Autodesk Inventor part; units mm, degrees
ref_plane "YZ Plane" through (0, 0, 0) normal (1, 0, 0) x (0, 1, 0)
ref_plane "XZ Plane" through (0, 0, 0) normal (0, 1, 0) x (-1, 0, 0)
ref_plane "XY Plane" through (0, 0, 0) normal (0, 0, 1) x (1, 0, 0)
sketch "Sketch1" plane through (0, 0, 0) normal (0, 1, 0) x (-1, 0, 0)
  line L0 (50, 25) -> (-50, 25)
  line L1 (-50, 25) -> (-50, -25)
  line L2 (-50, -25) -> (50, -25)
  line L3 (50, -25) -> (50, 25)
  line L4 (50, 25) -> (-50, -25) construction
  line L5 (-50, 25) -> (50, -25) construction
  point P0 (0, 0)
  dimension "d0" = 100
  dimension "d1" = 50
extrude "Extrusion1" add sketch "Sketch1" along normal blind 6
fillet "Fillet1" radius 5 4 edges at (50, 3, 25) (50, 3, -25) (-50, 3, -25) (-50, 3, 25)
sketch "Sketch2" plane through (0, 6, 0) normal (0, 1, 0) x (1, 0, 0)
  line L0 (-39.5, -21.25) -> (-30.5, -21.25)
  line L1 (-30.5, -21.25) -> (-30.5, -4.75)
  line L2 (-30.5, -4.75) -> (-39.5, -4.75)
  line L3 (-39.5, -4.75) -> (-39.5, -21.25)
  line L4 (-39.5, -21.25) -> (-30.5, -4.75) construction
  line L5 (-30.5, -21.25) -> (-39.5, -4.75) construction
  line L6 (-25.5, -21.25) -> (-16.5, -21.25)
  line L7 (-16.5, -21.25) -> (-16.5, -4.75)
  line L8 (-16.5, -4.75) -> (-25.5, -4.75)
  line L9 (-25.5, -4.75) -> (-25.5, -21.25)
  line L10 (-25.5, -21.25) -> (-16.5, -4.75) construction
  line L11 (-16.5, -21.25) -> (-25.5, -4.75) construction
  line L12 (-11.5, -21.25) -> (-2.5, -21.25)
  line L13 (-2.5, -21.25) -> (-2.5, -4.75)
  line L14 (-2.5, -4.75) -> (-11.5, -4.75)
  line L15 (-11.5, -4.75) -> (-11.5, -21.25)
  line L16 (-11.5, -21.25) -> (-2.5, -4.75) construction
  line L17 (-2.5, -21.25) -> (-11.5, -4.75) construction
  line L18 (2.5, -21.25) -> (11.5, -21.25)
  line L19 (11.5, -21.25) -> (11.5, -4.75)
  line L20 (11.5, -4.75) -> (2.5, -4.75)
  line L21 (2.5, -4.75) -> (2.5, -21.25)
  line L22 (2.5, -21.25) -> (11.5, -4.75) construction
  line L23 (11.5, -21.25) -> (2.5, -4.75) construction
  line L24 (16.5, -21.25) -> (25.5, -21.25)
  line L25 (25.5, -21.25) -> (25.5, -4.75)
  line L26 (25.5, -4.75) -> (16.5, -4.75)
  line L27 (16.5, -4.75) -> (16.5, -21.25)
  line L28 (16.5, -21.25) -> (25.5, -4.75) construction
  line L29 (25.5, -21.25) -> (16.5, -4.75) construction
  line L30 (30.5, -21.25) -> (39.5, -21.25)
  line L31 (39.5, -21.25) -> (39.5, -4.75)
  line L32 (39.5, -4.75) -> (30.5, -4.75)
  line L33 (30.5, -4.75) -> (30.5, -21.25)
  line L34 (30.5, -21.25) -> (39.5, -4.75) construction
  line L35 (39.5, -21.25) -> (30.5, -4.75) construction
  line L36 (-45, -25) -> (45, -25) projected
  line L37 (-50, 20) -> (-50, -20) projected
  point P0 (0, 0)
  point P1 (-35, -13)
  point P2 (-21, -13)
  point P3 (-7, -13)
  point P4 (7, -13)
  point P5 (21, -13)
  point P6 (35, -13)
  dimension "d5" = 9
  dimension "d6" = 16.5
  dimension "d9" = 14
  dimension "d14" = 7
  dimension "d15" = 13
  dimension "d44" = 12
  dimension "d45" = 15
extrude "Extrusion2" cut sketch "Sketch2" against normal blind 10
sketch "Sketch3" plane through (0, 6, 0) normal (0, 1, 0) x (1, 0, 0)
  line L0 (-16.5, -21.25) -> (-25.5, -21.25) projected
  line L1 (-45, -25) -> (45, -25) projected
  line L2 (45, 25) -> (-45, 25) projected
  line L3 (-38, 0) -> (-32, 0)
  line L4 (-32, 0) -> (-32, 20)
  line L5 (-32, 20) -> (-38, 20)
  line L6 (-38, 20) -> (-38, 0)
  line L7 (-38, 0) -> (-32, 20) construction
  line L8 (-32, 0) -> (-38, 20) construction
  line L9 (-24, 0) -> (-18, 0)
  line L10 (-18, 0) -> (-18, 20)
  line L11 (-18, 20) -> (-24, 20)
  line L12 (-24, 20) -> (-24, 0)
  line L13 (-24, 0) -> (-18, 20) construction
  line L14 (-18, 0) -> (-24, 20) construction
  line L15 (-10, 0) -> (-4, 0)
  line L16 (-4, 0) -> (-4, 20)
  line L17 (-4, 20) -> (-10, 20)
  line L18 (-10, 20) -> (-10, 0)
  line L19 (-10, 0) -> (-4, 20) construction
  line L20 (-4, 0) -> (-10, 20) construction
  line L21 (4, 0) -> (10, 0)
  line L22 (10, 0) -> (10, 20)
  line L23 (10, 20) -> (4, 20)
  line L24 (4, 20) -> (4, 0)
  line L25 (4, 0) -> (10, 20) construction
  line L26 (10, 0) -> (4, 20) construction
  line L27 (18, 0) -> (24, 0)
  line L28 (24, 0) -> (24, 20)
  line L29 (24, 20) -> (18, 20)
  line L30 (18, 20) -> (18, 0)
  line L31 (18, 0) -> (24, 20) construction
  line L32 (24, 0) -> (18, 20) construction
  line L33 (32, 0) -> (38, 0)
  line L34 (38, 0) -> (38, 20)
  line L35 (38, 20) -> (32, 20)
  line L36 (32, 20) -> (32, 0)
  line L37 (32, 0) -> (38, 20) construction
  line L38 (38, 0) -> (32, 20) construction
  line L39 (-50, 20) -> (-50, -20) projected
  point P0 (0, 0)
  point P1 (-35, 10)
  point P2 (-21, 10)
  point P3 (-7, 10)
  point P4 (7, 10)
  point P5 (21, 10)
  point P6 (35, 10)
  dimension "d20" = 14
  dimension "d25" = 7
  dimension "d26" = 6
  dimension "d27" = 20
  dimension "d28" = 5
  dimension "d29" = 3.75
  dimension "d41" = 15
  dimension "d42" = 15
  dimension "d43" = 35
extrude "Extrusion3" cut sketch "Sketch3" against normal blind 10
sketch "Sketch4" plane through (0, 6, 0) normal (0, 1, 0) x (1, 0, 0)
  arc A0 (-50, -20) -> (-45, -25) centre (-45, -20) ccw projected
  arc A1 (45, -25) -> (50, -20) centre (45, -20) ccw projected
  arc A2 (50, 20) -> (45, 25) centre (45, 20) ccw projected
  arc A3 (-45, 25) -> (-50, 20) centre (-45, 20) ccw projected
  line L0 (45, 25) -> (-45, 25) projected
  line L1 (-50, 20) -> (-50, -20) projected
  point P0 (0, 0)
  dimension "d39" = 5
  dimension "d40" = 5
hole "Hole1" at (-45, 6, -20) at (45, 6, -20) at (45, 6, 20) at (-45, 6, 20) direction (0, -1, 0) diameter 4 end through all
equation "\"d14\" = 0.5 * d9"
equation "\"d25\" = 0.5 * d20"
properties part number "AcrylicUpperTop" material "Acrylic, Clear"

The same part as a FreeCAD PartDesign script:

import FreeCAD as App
import Part
import Sketcher
from FreeCAD import Vector


def edges_at(feature, points):
    """Names of the edges that pass closest to the given points."""
    edges = feature.Shape.Edges
    near = lambda p: min(range(len(edges)), key=lambda i: edges[i].distToShape(Part.Vertex(*p))[0])
    return sorted({f"Edge{near(p) + 1}" for p in points})


def add_polygon(sketch, points):
    """Adds a closed chain of lines whose ends are joined by coincident constraints."""
    first, n = sketch.GeometryCount, len(points)
    for a, b in zip(points, points[1:] + points[:1]):
        sketch.addGeometry(Part.LineSegment(App.Vector(*a, 0), App.Vector(*b, 0)), False)
    for i in range(n):
        sketch.addConstraint(Sketcher.Constraint("Coincident", first + i, 2, first + (i + 1) % n, 1))

doc = App.newDocument("Part")
body = doc.addObject("PartDesign::Body", "Body")

sketch1 = body.newObject("Sketcher::SketchObject", "Sketch")
sketch1.AttachmentSupport = (doc.getObject("XZ_Plane"), [""])
sketch1.MapMode = "FlatFace"
add_polygon(sketch1, [(-50, -25), (-50, 25), (50, 25), (50, -25)])
sketch1.addConstraint([
    Sketcher.Constraint("Vertical", 0),
    Sketcher.Constraint("Horizontal", 1),
    Sketcher.Constraint("Vertical", 2),
    Sketcher.Constraint("Horizontal", 3),
    Sketcher.Constraint("Symmetric", 0, 2, 2, 2, -1, 1),
    Sketcher.Constraint("DistanceX", 1, 1, 1, 2, 100.0),
    Sketcher.Constraint("DistanceY", 0, 1, 0, 2, 50.0),
])
pad1 = body.newObject("PartDesign::Pad", "Pad")
pad1.Profile = sketch1
pad1.Length = 6
pad1.Reversed = True
doc.recompute()

fillet = body.newObject("PartDesign::Fillet", "Fillet")
fillet.Base = (pad1, edges_at(pad1, [
    (50, 3, 25),
    (50, 3, -25),
    (-50, 3, -25),
    (-50, 3, 25),
]))
fillet.Radius = 5

sketch2 = body.newObject("Sketcher::SketchObject", "Sketch001")
sketch2.AttachmentSupport = (doc.getObject("XZ_Plane"), [""])
sketch2.MapMode = "FlatFace"
sketch2.AttachmentOffset = App.Placement(Vector(0, 0, -6), App.Rotation())
add_polygon(sketch2, [(-39.5, 4.75), (-39.5, 21.25), (-30.5, 21.25), (-30.5, 4.75)])
add_polygon(sketch2, [(-25.5, 4.75), (-25.5, 21.25), (-16.5, 21.25), (-16.5, 4.75)])
add_polygon(sketch2, [(-11.5, 4.75), (-11.5, 21.25), (-2.5, 21.25), (-2.5, 4.75)])
add_polygon(sketch2, [(2.5, 4.75), (2.5, 21.25), (11.5, 21.25), (11.5, 4.75)])
add_polygon(sketch2, [(16.5, 4.75), (16.5, 21.25), (25.5, 21.25), (25.5, 4.75)])
add_polygon(sketch2, [(30.5, 4.75), (30.5, 21.25), (39.5, 21.25), (39.5, 4.75)])
sketch2.addConstraint([
    Sketcher.Constraint("Vertical", 0),
    Sketcher.Constraint("Horizontal", 1),
    Sketcher.Constraint("Vertical", 2),
    Sketcher.Constraint("Horizontal", 3),
    Sketcher.Constraint("Vertical", 4),
    Sketcher.Constraint("Horizontal", 5),
    Sketcher.Constraint("Vertical", 6),
    Sketcher.Constraint("Horizontal", 7),
    Sketcher.Constraint("Vertical", 8),
    Sketcher.Constraint("Horizontal", 9),
    Sketcher.Constraint("Vertical", 10),
    Sketcher.Constraint("Horizontal", 11),
    Sketcher.Constraint("Vertical", 12),
    Sketcher.Constraint("Horizontal", 13),
    Sketcher.Constraint("Vertical", 14),
    Sketcher.Constraint("Horizontal", 15),
    Sketcher.Constraint("Vertical", 16),
    Sketcher.Constraint("Horizontal", 17),
    Sketcher.Constraint("Vertical", 18),
    Sketcher.Constraint("Horizontal", 19),
    Sketcher.Constraint("Vertical", 20),
    Sketcher.Constraint("Horizontal", 21),
    Sketcher.Constraint("Vertical", 22),
    Sketcher.Constraint("Horizontal", 23),
    Sketcher.Constraint("Symmetric", 9, 2, 12, 2, -2),
    Sketcher.Constraint("Symmetric", 11, 2, 14, 2, -2),
    Sketcher.Constraint("Symmetric", 5, 2, 16, 2, -2),
    Sketcher.Constraint("Symmetric", 7, 2, 18, 2, -2),
    Sketcher.Constraint("Symmetric", 1, 2, 20, 2, -2),
    Sketcher.Constraint("Symmetric", 3, 2, 22, 2, -2),
    Sketcher.Constraint("Horizontal", 1, 2, 4, 2),
    Sketcher.Constraint("Horizontal", 3, 2, 6, 2),
    Sketcher.Constraint("Horizontal", 5, 2, 8, 2),
    Sketcher.Constraint("Horizontal", 7, 2, 10, 2),
    Sketcher.Constraint("Equal", 3, 5),
    Sketcher.Constraint("Equal", 7, 9),
    Sketcher.Constraint("DistanceX", 1, 1, 1, 2, 9.0),
    Sketcher.Constraint("DistanceY", 0, 1, 0, 2, 16.5),
    Sketcher.Constraint("DistanceX", 0, 2, 4, 2, 14.0),
    Sketcher.Constraint("DistanceX", 4, 2, 8, 2, 14.0),
    Sketcher.Constraint("DistanceX", 8, 2, 12, 2, 14.0),
    Sketcher.Constraint("DistanceY", -1, 1, 0, 2, 21.25),
])
pocket1 = body.newObject("PartDesign::Pocket", "Pocket")
pocket1.Profile = sketch2
pocket1.Length = 10
pocket1.Reversed = True

sketch3 = body.newObject("Sketcher::SketchObject", "Sketch002")
sketch3.AttachmentSupport = (doc.getObject("XZ_Plane"), [""])
sketch3.MapMode = "FlatFace"
sketch3.AttachmentOffset = App.Placement(Vector(0, 0, -6), App.Rotation())
add_polygon(sketch3, [(-38, -20), (-38, 0), (-32, 0), (-32, -20)])
add_polygon(sketch3, [(-24, -20), (-24, 0), (-18, 0), (-18, -20)])
add_polygon(sketch3, [(-10, -20), (-10, 0), (-4, 0), (-4, -20)])
add_polygon(sketch3, [(4, -20), (4, 0), (10, 0), (10, -20)])
add_polygon(sketch3, [(18, -20), (18, 0), (24, 0), (24, -20)])
add_polygon(sketch3, [(32, -20), (32, 0), (38, 0), (38, -20)])
sketch3.addConstraint([
    Sketcher.Constraint("Vertical", 0),
    Sketcher.Constraint("Horizontal", 1),
    Sketcher.Constraint("Vertical", 2),
    Sketcher.Constraint("Horizontal", 3),
    Sketcher.Constraint("Vertical", 4),
    Sketcher.Constraint("Horizontal", 5),
    Sketcher.Constraint("Vertical", 6),
    Sketcher.Constraint("Horizontal", 7),
    Sketcher.Constraint("Vertical", 8),
    Sketcher.Constraint("Horizontal", 9),
    Sketcher.Constraint("Vertical", 10),
    Sketcher.Constraint("Horizontal", 11),
    Sketcher.Constraint("Vertical", 12),
    Sketcher.Constraint("Horizontal", 13),
    Sketcher.Constraint("Vertical", 14),
    Sketcher.Constraint("Horizontal", 15),
    Sketcher.Constraint("Vertical", 16),
    Sketcher.Constraint("Horizontal", 17),
    Sketcher.Constraint("Vertical", 18),
    Sketcher.Constraint("Horizontal", 19),
    Sketcher.Constraint("Vertical", 20),
    Sketcher.Constraint("Horizontal", 21),
    Sketcher.Constraint("Vertical", 22),
    Sketcher.Constraint("Horizontal", 23),
    Sketcher.Constraint("Symmetric", 9, 2, 12, 2, -1, 1),
    Sketcher.Constraint("Symmetric", 5, 2, 16, 2, -1, 1),
    Sketcher.Constraint("Symmetric", 1, 2, 20, 2, -1, 1),
    Sketcher.Constraint("Symmetric", 8, 2, 13, 2, -2),
    Sketcher.Constraint("Symmetric", 4, 2, 17, 2, -2),
    Sketcher.Constraint("Symmetric", 0, 2, 21, 2, -2),
    Sketcher.Constraint("Horizontal", 3, 2, 6, 2),
    Sketcher.Constraint("Horizontal", 7, 2, 10, 2),
    Sketcher.Constraint("Horizontal", 11, 2, 14, 2),
    Sketcher.Constraint("Horizontal", 15, 2, 18, 2),
    Sketcher.Constraint("Horizontal", 19, 2, 22, 2),
    Sketcher.Constraint("Equal", 3, 5),
    Sketcher.Constraint("Equal", 7, 9),
    Sketcher.Constraint("DistanceX", 1, 1, 1, 2, 6.0),
    Sketcher.Constraint("DistanceY", 0, 1, 0, 2, 20.0),
    Sketcher.Constraint("DistanceX", 8, 2, -1, 1, 10.0),
    Sketcher.Constraint("DistanceX", 0, 2, 4, 2, 14.0),
    Sketcher.Constraint("DistanceX", 4, 2, 8, 2, 14.0),
])
pocket2 = body.newObject("PartDesign::Pocket", "Pocket001")
pocket2.Profile = sketch3
pocket2.Length = 10
pocket2.Reversed = True

sketch4 = body.newObject("Sketcher::SketchObject", "Sketch003")
sketch4.AttachmentSupport = (doc.getObject("XZ_Plane"), [""])
sketch4.MapMode = "FlatFace"
sketch4.AttachmentOffset = App.Placement(Vector(0, 0, -6), App.Rotation())
sketch4.addGeometry([
    Part.Circle(Vector(-45, -20, 0), Vector(0, 0, 1), 2),
    Part.Circle(Vector(45, -20, 0), Vector(0, 0, 1), 2),
    Part.Circle(Vector(45, 20, 0), Vector(0, 0, 1), 2),
    Part.Circle(Vector(-45, 20, 0), Vector(0, 0, 1), 2),
], False)
sketch4.addConstraint([
    Sketcher.Constraint("Equal", 0, 1),
    Sketcher.Constraint("Equal", 1, 2),
    Sketcher.Constraint("Equal", 2, 3),
    Sketcher.Constraint("Symmetric", 0, 3, 2, 3, -1, 1),
    Sketcher.Constraint("Symmetric", 1, 3, 3, 3, -1, 1),
    Sketcher.Constraint("Symmetric", 0, 3, 1, 3, -2),
    Sketcher.Constraint("Diameter", 0, 4.0),
    Sketcher.Constraint("DistanceX", 0, 3, -1, 1, 45.0),
    Sketcher.Constraint("DistanceY", 0, 3, -1, 1, 20.0),
])
doc.recompute()
hole = body.newObject("PartDesign::Hole", "Hole")
hole.Profile = sketch4
hole.ThreadType = "None"
hole.Diameter = 4
hole.DepthType = "ThroughAll"
hole.Reversed = True

doc.recompute()
